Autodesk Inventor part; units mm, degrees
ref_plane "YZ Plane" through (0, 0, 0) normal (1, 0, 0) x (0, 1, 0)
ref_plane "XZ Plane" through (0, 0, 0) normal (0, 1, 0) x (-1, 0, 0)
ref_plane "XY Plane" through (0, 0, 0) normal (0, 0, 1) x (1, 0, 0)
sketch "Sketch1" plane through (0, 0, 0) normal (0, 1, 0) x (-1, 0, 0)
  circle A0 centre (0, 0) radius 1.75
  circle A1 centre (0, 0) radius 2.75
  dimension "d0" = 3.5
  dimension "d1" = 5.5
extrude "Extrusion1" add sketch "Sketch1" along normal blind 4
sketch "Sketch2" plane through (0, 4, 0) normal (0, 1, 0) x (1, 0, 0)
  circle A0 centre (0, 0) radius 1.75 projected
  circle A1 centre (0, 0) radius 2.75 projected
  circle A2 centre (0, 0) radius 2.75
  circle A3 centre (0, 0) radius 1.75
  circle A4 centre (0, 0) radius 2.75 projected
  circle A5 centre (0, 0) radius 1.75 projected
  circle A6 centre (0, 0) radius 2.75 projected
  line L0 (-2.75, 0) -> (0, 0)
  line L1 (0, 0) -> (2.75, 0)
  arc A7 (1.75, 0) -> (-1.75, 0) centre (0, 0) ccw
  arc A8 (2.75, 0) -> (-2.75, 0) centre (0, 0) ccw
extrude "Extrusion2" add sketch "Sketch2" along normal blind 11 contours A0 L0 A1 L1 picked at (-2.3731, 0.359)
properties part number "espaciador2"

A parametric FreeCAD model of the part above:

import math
import FreeCAD as App
import Part
import Sketcher
Q = App.Units.Quantity

doc = App.newDocument("Part")
body = doc.addObject("PartDesign::Body", "Body")

sketch1 = body.newObject("Sketcher::SketchObject", "Sketch")
sketch1.AttachmentSupport = (doc.getObject("XZ_Plane"), [""])
sketch1.MapMode = "FlatFace"
sketch1.addGeometry(Part.Circle(App.Vector(0, 0, 0), App.Vector(0, 0, 1), 2.8), False)
sketch1.addGeometry(Part.Circle(App.Vector(0, 0, 0), App.Vector(0, 0, 1), 1.8), False)
sketch1.addConstraint(Sketcher.Constraint("Coincident", 0, 3, -1, 1))
sketch1.addConstraint(Sketcher.Constraint("Coincident", 1, 3, -1, 1))
sketch1.addConstraint(Sketcher.Constraint("Diameter", 0, Q("5.5 mm")))
sketch1.addConstraint(Sketcher.Constraint("Diameter", 1, Q("3.5 mm")))
pad1 = body.newObject("PartDesign::Pad", "Pad")
pad1.Profile = sketch1
pad1.Length = 4
pad1.Reversed = True

sketch2 = body.newObject("Sketcher::SketchObject", "Sketch001")
sketch2.AttachmentSupport = (doc.getObject("XZ_Plane"), [""])
sketch2.MapMode = "FlatFace"
sketch2.AttachmentOffset = App.Placement(App.Vector(0, 0, -4), App.Rotation())
sketch2.addGeometry(Part.ArcOfCircle(Part.Circle(App.Vector(0, 0, 0), App.Vector(0, 0, 1), 1.8), math.radians(180), math.radians(360)), False)
sketch2.addGeometry(Part.LineSegment(App.Vector(1.8, 0, 0), App.Vector(2.8, 0, 0)), False)
sketch2.addGeometry(Part.ArcOfCircle(Part.Circle(App.Vector(0, 0, 0), App.Vector(0, 0, 1), 2.8), math.radians(180), math.radians(360)), False)
sketch2.addGeometry(Part.LineSegment(App.Vector(-2.8, 0, 0), App.Vector(-1.8, 0, 0)), False)
sketch2.addConstraint(Sketcher.Constraint("Coincident", 0, 2, 1, 1))
sketch2.addConstraint(Sketcher.Constraint("Coincident", 1, 2, 2, 2))
sketch2.addConstraint(Sketcher.Constraint("Coincident", 2, 1, 3, 1))
sketch2.addConstraint(Sketcher.Constraint("Coincident", 3, 2, 0, 1))
sketch2.addConstraint(Sketcher.Constraint("Horizontal", 1))
sketch2.addConstraint(Sketcher.Constraint("Horizontal", 3))
sketch2.addConstraint(Sketcher.Constraint("Coincident", 0, 3, -1, 1))
sketch2.addConstraint(Sketcher.Constraint("Coincident", 2, 3, -1, 1))
sketch2.addConstraint(Sketcher.Constraint("PointOnObject", 0, 2, -1))
sketch2.addConstraint(Sketcher.Constraint("PointOnObject", 2, 1, -1))
sketch2.addConstraint(Sketcher.Constraint("DistanceX", 1, 1, 1, 2, Q("1 mm")))
sketch2.addConstraint(Sketcher.Constraint("Radius", 0, Q("1.75 mm")))
pad2 = body.newObject("PartDesign::Pad", "Pad001")
pad2.Profile = sketch2
pad2.Length = 11
pad2.Reversed = True

doc.recompute()
